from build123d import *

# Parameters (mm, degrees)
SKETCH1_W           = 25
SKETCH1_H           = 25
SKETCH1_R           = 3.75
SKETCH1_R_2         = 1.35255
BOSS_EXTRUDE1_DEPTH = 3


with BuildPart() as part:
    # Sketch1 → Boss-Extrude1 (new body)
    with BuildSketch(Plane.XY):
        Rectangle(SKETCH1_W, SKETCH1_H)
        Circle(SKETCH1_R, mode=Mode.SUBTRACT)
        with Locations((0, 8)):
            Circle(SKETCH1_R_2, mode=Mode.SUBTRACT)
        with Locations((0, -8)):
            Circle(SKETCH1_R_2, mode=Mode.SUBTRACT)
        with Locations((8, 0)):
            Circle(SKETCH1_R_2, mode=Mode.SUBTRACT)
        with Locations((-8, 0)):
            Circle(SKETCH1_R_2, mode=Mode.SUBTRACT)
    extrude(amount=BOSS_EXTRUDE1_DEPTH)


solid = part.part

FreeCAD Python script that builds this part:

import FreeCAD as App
import Part
import Sketcher
from FreeCAD import Vector
Q = App.Units.Quantity

doc = App.newDocument("Part")
body = doc.addObject("PartDesign::Body", "Body")

# Sketch on XY plane
sketch1 = body.newObject("Sketcher::SketchObject", "Sketch")
sketch1.AttachmentSupport = (doc.getObject("XY_Plane"), [""])
sketch1.MapMode = "FlatFace"
sketch1.addGeometry(Part.LineSegment(Vector(-12.5, 12.5, 0), Vector(-12.5, -12.5, 0)), False)
sketch1.addGeometry(Part.LineSegment(Vector(-12.5, -12.5, 0), Vector(12.5, -12.5, 0)), False)
sketch1.addGeometry(Part.LineSegment(Vector(12.5, -12.5, 0), Vector(12.5, 12.5, 0)), False)
sketch1.addGeometry(Part.LineSegment(Vector(12.5, 12.5, 0), Vector(-12.5, 12.5, 0)), False)
sketch1.addGeometry(Part.Circle(Vector(0, -8, 0), Vector(0, 0, 1), 1.4), False)
sketch1.addGeometry(Part.Circle(Vector(-8, 0, 0), Vector(0, 0, 1), 1.4), False)
sketch1.addGeometry(Part.Circle(Vector(0, 0, 0), Vector(0, 0, 1), 3.8), False)
sketch1.addGeometry(Part.Circle(Vector(8, 0, 0), Vector(0, 0, 1), 1.4), False)
sketch1.addGeometry(Part.Circle(Vector(0, 8, 0), Vector(0, 0, 1), 1.4), False)
sketch1.addConstraint(Sketcher.Constraint("Coincident", 0, 2, 1, 1))
sketch1.addConstraint(Sketcher.Constraint("Coincident", 1, 2, 2, 1))
sketch1.addConstraint(Sketcher.Constraint("Coincident", 2, 2, 3, 1))
sketch1.addConstraint(Sketcher.Constraint("Coincident", 3, 2, 0, 1))
sketch1.addConstraint(Sketcher.Constraint("Vertical", 0))
sketch1.addConstraint(Sketcher.Constraint("Horizontal", 1))
sketch1.addConstraint(Sketcher.Constraint("Vertical", 2))
sketch1.addConstraint(Sketcher.Constraint("Horizontal", 3))
sketch1.addConstraint(Sketcher.Constraint("Coincident", 6, 3, -1, 1))
sketch1.addConstraint(Sketcher.Constraint("Equal", 4, 5))
sketch1.addConstraint(Sketcher.Constraint("Equal", 5, 7))
sketch1.addConstraint(Sketcher.Constraint("Equal", 7, 8))
sketch1.addConstraint(Sketcher.Constraint("Symmetric", 5, 3, 7, 3, -1, 1))
sketch1.addConstraint(Sketcher.Constraint("Symmetric", 4, 3, 8, 3, -1, 1))
sketch1.addConstraint(Sketcher.Constraint("Symmetric", 0, 2, 2, 2, -1, 1))
sketch1.addConstraint(Sketcher.Constraint("PointOnObject", 4, 3, -2))
sketch1.addConstraint(Sketcher.Constraint("PointOnObject", 5, 3, -1))
sketch1.addConstraint(Sketcher.Constraint("Equal", 3, 0))
sketch1.addConstraint(Sketcher.Constraint("Diameter", 6, Q("7.5 mm")))
sketch1.addConstraint(Sketcher.Constraint("DistanceX", 1, 1, 1, 2, Q("25 mm")))
sketch1.addConstraint(Sketcher.Constraint("DistanceY", 4, 3, -1, 1, Q("8 mm")))
sketch1.addConstraint(Sketcher.Constraint("DistanceX", 5, 3, -1, 1, Q("8 mm")))
sketch1.addConstraint(Sketcher.Constraint("Diameter", 4, Q("2.7051 mm")))
pad1 = body.newObject("PartDesign::Pad", "Pad")
pad1.Profile = sketch1
pad1.Length = 3

doc.recompute()
